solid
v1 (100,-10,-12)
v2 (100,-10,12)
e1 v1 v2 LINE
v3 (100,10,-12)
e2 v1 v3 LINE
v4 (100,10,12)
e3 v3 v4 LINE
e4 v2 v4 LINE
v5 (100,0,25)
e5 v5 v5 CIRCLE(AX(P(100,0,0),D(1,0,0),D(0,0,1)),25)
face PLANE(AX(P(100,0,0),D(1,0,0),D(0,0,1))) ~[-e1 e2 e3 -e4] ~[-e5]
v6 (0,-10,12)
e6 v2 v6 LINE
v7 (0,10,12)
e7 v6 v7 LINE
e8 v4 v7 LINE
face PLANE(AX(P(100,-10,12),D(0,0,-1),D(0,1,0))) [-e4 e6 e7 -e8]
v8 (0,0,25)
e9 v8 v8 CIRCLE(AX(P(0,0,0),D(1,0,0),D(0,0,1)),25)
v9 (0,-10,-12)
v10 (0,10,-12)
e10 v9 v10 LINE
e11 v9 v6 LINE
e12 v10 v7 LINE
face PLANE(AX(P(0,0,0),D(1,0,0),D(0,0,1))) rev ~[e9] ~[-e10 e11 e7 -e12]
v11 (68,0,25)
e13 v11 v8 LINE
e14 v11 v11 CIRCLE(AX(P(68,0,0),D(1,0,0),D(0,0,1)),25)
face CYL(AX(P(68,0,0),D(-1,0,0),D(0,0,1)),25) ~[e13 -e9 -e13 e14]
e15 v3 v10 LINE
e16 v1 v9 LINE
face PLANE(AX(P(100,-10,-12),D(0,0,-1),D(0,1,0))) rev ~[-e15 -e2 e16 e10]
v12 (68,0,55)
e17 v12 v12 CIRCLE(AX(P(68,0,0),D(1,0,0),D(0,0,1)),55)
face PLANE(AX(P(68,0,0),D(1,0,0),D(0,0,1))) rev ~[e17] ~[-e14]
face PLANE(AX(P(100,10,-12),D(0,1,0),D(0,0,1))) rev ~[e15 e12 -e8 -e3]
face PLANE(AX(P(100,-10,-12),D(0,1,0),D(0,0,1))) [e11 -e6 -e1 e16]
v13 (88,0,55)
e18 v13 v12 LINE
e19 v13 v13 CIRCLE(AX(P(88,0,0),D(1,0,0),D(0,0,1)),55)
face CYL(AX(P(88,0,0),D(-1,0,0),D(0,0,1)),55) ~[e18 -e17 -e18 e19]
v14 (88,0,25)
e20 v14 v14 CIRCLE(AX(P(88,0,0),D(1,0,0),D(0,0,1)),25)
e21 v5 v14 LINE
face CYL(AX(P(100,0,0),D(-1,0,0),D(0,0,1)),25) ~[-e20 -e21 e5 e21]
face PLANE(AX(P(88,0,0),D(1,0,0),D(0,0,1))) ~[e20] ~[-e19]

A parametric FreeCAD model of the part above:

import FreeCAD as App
import Part
import Sketcher

doc = App.newDocument("Part")
body = doc.addObject("PartDesign::Body", "Body")

# Sketch on XZ plane
sketch1 = body.newObject("Sketcher::SketchObject", "Sketch")
sketch1.AttachmentSupport = (doc.getObject("XZ_Plane"), [""])
sketch1.MapMode = "FlatFace"
sketch1.addGeometry(Part.LineSegment(App.Vector(0, 25, 0), App.Vector(0, 0, 0)), False)
sketch1.addGeometry(Part.LineSegment(App.Vector(0, 0, 0), App.Vector(100, 0, 0)), False)
sketch1.addGeometry(Part.LineSegment(App.Vector(100, 0, 0), App.Vector(100, 25, 0)), False)
sketch1.addGeometry(Part.LineSegment(App.Vector(100, 25, 0), App.Vector(88, 25, 0)), False)
sketch1.addGeometry(Part.LineSegment(App.Vector(88, 25, 0), App.Vector(88, 55, 0)), False)
sketch1.addGeometry(Part.LineSegment(App.Vector(88, 55, 0), App.Vector(68, 55, 0)), False)
sketch1.addGeometry(Part.LineSegment(App.Vector(68, 55, 0), App.Vector(68, 25, 0)), False)
sketch1.addGeometry(Part.LineSegment(App.Vector(68, 25, 0), App.Vector(0, 25, 0)), False)
sketch1.addConstraint(Sketcher.Constraint("Coincident", 0, 2, 1, 1))
sketch1.addConstraint(Sketcher.Constraint("Coincident", 1, 2, 2, 1))
sketch1.addConstraint(Sketcher.Constraint("Coincident", 2, 2, 3, 1))
sketch1.addConstraint(Sketcher.Constraint("Coincident", 3, 2, 4, 1))
sketch1.addConstraint(Sketcher.Constraint("Coincident", 4, 2, 5, 1))
sketch1.addConstraint(Sketcher.Constraint("Coincident", 5, 2, 6, 1))
sketch1.addConstraint(Sketcher.Constraint("Coincident", 6, 2, 7, 1))
sketch1.addConstraint(Sketcher.Constraint("Coincident", 7, 2, 0, 1))
sketch1.addConstraint(Sketcher.Constraint("Vertical", 0))
sketch1.addConstraint(Sketcher.Constraint("Horizontal", 1))
sketch1.addConstraint(Sketcher.Constraint("Vertical", 2))
sketch1.addConstraint(Sketcher.Constraint("Horizontal", 3))
sketch1.addConstraint(Sketcher.Constraint("Vertical", 4))
sketch1.addConstraint(Sketcher.Constraint("Horizontal", 5))
sketch1.addConstraint(Sketcher.Constraint("Vertical", 6))
sketch1.addConstraint(Sketcher.Constraint("Horizontal", 7))
sketch1.addConstraint(Sketcher.Constraint("Coincident", 0, 2, -1, 1))
sketch1.addConstraint(Sketcher.Constraint("Horizontal", 3, 2, 6, 2))
sketch1.addConstraint(Sketcher.Constraint("DistanceX", 1, 1, 1, 2, 100.0))
sketch1.addConstraint(Sketcher.Constraint("DistanceX", 3, 2, 3, 1, 12.0))
sketch1.addConstraint(Sketcher.Constraint("DistanceX", 5, 2, 5, 1, 20.0))
sketch1.addConstraint(Sketcher.Constraint("DistanceY", 0, 2, 0, 1, 25.0))
sketch1.addConstraint(Sketcher.Constraint("DistanceY", 4, 1, 4, 2, 30.0))
revolution = body.newObject("PartDesign::Revolution", "Revolution")
revolution.Profile = sketch1
revolution.ReferenceAxis = (sketch1, ["H_Axis"])
revolution.Angle = 360

# Sketch on YZ plane
sketch2 = body.newObject("Sketcher::SketchObject", "Sketch001")
sketch2.AttachmentSupport = (doc.getObject("YZ_Plane"), [""])
sketch2.MapMode = "FlatFace"
sketch2.AttachmentOffset = App.Placement(App.Vector(0, 0, 100), App.Rotation())
sketch2.addGeometry(Part.LineSegment(App.Vector(-10, 12, 0), App.Vector(-10, -12, 0)), False)
sketch2.addGeometry(Part.LineSegment(App.Vector(-10, -12, 0), App.Vector(10, -12, 0)), False)
sketch2.addGeometry(Part.LineSegment(App.Vector(10, -12, 0), App.Vector(10, 12, 0)), False)
sketch2.addGeometry(Part.LineSegment(App.Vector(10, 12, 0), App.Vector(-10, 12, 0)), False)
sketch2.addConstraint(Sketcher.Constraint("Coincident", 0, 2, 1, 1))
sketch2.addConstraint(Sketcher.Constraint("Coincident", 1, 2, 2, 1))
sketch2.addConstraint(Sketcher.Constraint("Coincident", 2, 2, 3, 1))
sketch2.addConstraint(Sketcher.Constraint("Coincident", 3, 2, 0, 1))
sketch2.addConstraint(Sketcher.Constraint("Vertical", 0))
sketch2.addConstraint(Sketcher.Constraint("Horizontal", 1))
sketch2.addConstraint(Sketcher.Constraint("Vertical", 2))
sketch2.addConstraint(Sketcher.Constraint("Horizontal", 3))
sketch2.addConstraint(Sketcher.Constraint("Symmetric", 0, 2, 2, 2, -1, 1))
sketch2.addConstraint(Sketcher.Constraint("DistanceX", 1, 1, 1, 2, 20.0))
sketch2.addConstraint(Sketcher.Constraint("DistanceY", 0, 2, 0, 1, 24.0))
pocket1 = body.newObject("PartDesign::Pocket", "Pocket")
pocket1.Profile = sketch2
pocket1.Type = "ThroughAll"

doc.recompute()
